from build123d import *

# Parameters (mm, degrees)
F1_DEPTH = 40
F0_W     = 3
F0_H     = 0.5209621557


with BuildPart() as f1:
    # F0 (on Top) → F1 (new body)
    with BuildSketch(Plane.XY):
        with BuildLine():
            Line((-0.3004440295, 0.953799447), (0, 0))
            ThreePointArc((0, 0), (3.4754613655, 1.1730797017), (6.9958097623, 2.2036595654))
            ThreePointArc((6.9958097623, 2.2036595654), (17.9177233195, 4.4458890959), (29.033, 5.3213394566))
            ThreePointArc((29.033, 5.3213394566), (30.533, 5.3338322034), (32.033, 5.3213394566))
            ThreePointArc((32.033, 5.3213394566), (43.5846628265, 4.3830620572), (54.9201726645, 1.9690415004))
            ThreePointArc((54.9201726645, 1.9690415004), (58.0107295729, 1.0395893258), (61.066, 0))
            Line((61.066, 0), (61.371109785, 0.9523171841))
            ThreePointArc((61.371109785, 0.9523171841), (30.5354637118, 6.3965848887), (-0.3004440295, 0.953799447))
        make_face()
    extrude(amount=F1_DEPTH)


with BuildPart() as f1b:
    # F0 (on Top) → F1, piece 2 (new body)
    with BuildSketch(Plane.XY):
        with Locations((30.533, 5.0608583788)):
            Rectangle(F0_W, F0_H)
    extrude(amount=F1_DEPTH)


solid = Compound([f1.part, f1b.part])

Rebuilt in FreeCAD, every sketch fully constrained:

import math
import FreeCAD as App
import Part
import Sketcher

doc = App.newDocument("Part")
body = doc.addObject("PartDesign::Body", "Body")

# Sketch on XY plane
sketch1 = body.newObject("Sketcher::SketchObject", "Sketch")
sketch1.AttachmentSupport = (doc.getObject("XY_Plane"), [""])
sketch1.MapMode = "FlatFace"
sketch1.addGeometry([
    Part.LineSegment(App.Vector(-0.300444, 0.953799, 0), App.Vector(0, 0, 0)),  # 0
    Part.ArcOfCircle(Part.Circle(App.Vector(30.533, -84.724668, 0), App.Vector(0, 0, 1), 90.0585), math.radians(105.150446), math.radians(109.818103)),  # 1
    Part.ArcOfCircle(Part.Circle(App.Vector(30.533, -84.724668, 0), App.Vector(0, 0, 1), 90.0585), math.radians(90.954353), math.radians(105.150446)),  # 2
    Part.ArcOfCircle(Part.Circle(App.Vector(30.533, -84.724668, 0), App.Vector(0, 0, 1), 90.0585), math.radians(89.045647), math.radians(90.954353)),  # 3
    Part.ArcOfCircle(Part.Circle(App.Vector(30.533, -84.724668, 0), App.Vector(0, 0, 1), 90.0585), math.radians(74.288565), math.radians(89.045647)),  # 4
    Part.ArcOfCircle(Part.Circle(App.Vector(30.533, -84.724668, 0), App.Vector(0, 0, 1), 90.0585), math.radians(70.181897), math.radians(74.288565)),  # 5
    Part.LineSegment(App.Vector(61.066, 0, 0), App.Vector(61.37111, 0.952317, 0)),  # 6
    Part.ArcOfCircle(Part.Circle(App.Vector(30.533299, -83.662415, 0), App.Vector(0, 0, 1), 90.059), math.radians(69.975748), math.radians(110.021498)),  # 7
], False)
sketch1.addConstraint([
    Sketcher.Constraint("Coincident", 0, 2, 1, 2),
    Sketcher.Constraint("Tangent", 1, 1, 2, 2),
    Sketcher.Constraint("Tangent", 2, 1, 3, 2),
    Sketcher.Constraint("Tangent", 3, 1, 4, 2),
    Sketcher.Constraint("Tangent", 4, 1, 5, 2),
    Sketcher.Constraint("Coincident", 5, 1, 6, 1),
    Sketcher.Constraint("Coincident", 6, 2, 7, 1),
    Sketcher.Constraint("Coincident", 7, 2, 0, 1),
    Sketcher.Constraint("Coincident", 0, 2, -1, 1),
    Sketcher.Constraint("Coincident", 3, 3, 1, 3),
    Sketcher.Constraint("Coincident", 5, 3, 1, 3),
    Sketcher.Constraint("PointOnObject", 5, 1, -1),
    Sketcher.Constraint("Horizontal", 2, 1, 3, 1),
    Sketcher.Constraint("Equal", 0, 6),
    Sketcher.Constraint("Distance", 0, 1.0),
    Sketcher.Constraint("Radius", 7, 90.059),
    Sketcher.Constraint("DistanceX", 2, 1, 3, 1, 3.0),
    Sketcher.Constraint("Radius", 1, 90.0585),
    Sketcher.Constraint("DistanceX", -1, 1, 1, 3, 30.533),
    Sketcher.Constraint("DistanceX", -1, 1, 7, 3, 30.533299),
    Sketcher.Constraint("DistanceY", -1, 1, 7, 2, 0.953799),
    Sketcher.Constraint("DistanceX", 1, 1, 6, 2, 54.3753),
    Sketcher.Constraint("DistanceY", -1, 1, 4, 1, 1.969041),
])
pad1 = body.newObject("PartDesign::Pad", "Pad")
pad1.Profile = sketch1
pad1.Length = 40
body2 = doc.addObject("PartDesign::Body", "Body001")

# Sketch on XY plane
sketch2 = body2.newObject("Sketcher::SketchObject", "Sketch001")
sketch2.AttachmentSupport = (doc.getObject("XY_Plane001"), [""])
sketch2.MapMode = "FlatFace"
sketch2.addGeometry([
    Part.LineSegment(App.Vector(29.033, 5.321339, 0), App.Vector(29.033, 4.800377, 0)),
    Part.LineSegment(App.Vector(29.033, 4.800377, 0), App.Vector(32.033, 4.800377, 0)),
    Part.LineSegment(App.Vector(32.033, 4.800377, 0), App.Vector(32.033, 5.321339, 0)),
    Part.LineSegment(App.Vector(32.033, 5.321339, 0), App.Vector(29.033, 5.321339, 0)),
], False)
sketch2.addConstraint([
    Sketcher.Constraint("Coincident", 0, 2, 1, 1),
    Sketcher.Constraint("Coincident", 1, 2, 2, 1),
    Sketcher.Constraint("Coincident", 2, 2, 3, 1),
    Sketcher.Constraint("Coincident", 3, 2, 0, 1),
    Sketcher.Constraint("Vertical", 0),
    Sketcher.Constraint("Horizontal", 1),
    Sketcher.Constraint("Vertical", 2),
    Sketcher.Constraint("Horizontal", 3),
    Sketcher.Constraint("DistanceX", 1, 1, 1, 2, 3.0),
    Sketcher.Constraint("DistanceX", -1, 1, 0, 2, 29.033),
    Sketcher.Constraint("DistanceY", 0, 2, 0, 1, 0.520962),
    Sketcher.Constraint("DistanceY", -1, 1, 2, 2, 5.321339),
])
pad2 = body2.newObject("PartDesign::Pad", "Pad001")
pad2.Profile = sketch2
pad2.Length = 40

doc.recompute()
